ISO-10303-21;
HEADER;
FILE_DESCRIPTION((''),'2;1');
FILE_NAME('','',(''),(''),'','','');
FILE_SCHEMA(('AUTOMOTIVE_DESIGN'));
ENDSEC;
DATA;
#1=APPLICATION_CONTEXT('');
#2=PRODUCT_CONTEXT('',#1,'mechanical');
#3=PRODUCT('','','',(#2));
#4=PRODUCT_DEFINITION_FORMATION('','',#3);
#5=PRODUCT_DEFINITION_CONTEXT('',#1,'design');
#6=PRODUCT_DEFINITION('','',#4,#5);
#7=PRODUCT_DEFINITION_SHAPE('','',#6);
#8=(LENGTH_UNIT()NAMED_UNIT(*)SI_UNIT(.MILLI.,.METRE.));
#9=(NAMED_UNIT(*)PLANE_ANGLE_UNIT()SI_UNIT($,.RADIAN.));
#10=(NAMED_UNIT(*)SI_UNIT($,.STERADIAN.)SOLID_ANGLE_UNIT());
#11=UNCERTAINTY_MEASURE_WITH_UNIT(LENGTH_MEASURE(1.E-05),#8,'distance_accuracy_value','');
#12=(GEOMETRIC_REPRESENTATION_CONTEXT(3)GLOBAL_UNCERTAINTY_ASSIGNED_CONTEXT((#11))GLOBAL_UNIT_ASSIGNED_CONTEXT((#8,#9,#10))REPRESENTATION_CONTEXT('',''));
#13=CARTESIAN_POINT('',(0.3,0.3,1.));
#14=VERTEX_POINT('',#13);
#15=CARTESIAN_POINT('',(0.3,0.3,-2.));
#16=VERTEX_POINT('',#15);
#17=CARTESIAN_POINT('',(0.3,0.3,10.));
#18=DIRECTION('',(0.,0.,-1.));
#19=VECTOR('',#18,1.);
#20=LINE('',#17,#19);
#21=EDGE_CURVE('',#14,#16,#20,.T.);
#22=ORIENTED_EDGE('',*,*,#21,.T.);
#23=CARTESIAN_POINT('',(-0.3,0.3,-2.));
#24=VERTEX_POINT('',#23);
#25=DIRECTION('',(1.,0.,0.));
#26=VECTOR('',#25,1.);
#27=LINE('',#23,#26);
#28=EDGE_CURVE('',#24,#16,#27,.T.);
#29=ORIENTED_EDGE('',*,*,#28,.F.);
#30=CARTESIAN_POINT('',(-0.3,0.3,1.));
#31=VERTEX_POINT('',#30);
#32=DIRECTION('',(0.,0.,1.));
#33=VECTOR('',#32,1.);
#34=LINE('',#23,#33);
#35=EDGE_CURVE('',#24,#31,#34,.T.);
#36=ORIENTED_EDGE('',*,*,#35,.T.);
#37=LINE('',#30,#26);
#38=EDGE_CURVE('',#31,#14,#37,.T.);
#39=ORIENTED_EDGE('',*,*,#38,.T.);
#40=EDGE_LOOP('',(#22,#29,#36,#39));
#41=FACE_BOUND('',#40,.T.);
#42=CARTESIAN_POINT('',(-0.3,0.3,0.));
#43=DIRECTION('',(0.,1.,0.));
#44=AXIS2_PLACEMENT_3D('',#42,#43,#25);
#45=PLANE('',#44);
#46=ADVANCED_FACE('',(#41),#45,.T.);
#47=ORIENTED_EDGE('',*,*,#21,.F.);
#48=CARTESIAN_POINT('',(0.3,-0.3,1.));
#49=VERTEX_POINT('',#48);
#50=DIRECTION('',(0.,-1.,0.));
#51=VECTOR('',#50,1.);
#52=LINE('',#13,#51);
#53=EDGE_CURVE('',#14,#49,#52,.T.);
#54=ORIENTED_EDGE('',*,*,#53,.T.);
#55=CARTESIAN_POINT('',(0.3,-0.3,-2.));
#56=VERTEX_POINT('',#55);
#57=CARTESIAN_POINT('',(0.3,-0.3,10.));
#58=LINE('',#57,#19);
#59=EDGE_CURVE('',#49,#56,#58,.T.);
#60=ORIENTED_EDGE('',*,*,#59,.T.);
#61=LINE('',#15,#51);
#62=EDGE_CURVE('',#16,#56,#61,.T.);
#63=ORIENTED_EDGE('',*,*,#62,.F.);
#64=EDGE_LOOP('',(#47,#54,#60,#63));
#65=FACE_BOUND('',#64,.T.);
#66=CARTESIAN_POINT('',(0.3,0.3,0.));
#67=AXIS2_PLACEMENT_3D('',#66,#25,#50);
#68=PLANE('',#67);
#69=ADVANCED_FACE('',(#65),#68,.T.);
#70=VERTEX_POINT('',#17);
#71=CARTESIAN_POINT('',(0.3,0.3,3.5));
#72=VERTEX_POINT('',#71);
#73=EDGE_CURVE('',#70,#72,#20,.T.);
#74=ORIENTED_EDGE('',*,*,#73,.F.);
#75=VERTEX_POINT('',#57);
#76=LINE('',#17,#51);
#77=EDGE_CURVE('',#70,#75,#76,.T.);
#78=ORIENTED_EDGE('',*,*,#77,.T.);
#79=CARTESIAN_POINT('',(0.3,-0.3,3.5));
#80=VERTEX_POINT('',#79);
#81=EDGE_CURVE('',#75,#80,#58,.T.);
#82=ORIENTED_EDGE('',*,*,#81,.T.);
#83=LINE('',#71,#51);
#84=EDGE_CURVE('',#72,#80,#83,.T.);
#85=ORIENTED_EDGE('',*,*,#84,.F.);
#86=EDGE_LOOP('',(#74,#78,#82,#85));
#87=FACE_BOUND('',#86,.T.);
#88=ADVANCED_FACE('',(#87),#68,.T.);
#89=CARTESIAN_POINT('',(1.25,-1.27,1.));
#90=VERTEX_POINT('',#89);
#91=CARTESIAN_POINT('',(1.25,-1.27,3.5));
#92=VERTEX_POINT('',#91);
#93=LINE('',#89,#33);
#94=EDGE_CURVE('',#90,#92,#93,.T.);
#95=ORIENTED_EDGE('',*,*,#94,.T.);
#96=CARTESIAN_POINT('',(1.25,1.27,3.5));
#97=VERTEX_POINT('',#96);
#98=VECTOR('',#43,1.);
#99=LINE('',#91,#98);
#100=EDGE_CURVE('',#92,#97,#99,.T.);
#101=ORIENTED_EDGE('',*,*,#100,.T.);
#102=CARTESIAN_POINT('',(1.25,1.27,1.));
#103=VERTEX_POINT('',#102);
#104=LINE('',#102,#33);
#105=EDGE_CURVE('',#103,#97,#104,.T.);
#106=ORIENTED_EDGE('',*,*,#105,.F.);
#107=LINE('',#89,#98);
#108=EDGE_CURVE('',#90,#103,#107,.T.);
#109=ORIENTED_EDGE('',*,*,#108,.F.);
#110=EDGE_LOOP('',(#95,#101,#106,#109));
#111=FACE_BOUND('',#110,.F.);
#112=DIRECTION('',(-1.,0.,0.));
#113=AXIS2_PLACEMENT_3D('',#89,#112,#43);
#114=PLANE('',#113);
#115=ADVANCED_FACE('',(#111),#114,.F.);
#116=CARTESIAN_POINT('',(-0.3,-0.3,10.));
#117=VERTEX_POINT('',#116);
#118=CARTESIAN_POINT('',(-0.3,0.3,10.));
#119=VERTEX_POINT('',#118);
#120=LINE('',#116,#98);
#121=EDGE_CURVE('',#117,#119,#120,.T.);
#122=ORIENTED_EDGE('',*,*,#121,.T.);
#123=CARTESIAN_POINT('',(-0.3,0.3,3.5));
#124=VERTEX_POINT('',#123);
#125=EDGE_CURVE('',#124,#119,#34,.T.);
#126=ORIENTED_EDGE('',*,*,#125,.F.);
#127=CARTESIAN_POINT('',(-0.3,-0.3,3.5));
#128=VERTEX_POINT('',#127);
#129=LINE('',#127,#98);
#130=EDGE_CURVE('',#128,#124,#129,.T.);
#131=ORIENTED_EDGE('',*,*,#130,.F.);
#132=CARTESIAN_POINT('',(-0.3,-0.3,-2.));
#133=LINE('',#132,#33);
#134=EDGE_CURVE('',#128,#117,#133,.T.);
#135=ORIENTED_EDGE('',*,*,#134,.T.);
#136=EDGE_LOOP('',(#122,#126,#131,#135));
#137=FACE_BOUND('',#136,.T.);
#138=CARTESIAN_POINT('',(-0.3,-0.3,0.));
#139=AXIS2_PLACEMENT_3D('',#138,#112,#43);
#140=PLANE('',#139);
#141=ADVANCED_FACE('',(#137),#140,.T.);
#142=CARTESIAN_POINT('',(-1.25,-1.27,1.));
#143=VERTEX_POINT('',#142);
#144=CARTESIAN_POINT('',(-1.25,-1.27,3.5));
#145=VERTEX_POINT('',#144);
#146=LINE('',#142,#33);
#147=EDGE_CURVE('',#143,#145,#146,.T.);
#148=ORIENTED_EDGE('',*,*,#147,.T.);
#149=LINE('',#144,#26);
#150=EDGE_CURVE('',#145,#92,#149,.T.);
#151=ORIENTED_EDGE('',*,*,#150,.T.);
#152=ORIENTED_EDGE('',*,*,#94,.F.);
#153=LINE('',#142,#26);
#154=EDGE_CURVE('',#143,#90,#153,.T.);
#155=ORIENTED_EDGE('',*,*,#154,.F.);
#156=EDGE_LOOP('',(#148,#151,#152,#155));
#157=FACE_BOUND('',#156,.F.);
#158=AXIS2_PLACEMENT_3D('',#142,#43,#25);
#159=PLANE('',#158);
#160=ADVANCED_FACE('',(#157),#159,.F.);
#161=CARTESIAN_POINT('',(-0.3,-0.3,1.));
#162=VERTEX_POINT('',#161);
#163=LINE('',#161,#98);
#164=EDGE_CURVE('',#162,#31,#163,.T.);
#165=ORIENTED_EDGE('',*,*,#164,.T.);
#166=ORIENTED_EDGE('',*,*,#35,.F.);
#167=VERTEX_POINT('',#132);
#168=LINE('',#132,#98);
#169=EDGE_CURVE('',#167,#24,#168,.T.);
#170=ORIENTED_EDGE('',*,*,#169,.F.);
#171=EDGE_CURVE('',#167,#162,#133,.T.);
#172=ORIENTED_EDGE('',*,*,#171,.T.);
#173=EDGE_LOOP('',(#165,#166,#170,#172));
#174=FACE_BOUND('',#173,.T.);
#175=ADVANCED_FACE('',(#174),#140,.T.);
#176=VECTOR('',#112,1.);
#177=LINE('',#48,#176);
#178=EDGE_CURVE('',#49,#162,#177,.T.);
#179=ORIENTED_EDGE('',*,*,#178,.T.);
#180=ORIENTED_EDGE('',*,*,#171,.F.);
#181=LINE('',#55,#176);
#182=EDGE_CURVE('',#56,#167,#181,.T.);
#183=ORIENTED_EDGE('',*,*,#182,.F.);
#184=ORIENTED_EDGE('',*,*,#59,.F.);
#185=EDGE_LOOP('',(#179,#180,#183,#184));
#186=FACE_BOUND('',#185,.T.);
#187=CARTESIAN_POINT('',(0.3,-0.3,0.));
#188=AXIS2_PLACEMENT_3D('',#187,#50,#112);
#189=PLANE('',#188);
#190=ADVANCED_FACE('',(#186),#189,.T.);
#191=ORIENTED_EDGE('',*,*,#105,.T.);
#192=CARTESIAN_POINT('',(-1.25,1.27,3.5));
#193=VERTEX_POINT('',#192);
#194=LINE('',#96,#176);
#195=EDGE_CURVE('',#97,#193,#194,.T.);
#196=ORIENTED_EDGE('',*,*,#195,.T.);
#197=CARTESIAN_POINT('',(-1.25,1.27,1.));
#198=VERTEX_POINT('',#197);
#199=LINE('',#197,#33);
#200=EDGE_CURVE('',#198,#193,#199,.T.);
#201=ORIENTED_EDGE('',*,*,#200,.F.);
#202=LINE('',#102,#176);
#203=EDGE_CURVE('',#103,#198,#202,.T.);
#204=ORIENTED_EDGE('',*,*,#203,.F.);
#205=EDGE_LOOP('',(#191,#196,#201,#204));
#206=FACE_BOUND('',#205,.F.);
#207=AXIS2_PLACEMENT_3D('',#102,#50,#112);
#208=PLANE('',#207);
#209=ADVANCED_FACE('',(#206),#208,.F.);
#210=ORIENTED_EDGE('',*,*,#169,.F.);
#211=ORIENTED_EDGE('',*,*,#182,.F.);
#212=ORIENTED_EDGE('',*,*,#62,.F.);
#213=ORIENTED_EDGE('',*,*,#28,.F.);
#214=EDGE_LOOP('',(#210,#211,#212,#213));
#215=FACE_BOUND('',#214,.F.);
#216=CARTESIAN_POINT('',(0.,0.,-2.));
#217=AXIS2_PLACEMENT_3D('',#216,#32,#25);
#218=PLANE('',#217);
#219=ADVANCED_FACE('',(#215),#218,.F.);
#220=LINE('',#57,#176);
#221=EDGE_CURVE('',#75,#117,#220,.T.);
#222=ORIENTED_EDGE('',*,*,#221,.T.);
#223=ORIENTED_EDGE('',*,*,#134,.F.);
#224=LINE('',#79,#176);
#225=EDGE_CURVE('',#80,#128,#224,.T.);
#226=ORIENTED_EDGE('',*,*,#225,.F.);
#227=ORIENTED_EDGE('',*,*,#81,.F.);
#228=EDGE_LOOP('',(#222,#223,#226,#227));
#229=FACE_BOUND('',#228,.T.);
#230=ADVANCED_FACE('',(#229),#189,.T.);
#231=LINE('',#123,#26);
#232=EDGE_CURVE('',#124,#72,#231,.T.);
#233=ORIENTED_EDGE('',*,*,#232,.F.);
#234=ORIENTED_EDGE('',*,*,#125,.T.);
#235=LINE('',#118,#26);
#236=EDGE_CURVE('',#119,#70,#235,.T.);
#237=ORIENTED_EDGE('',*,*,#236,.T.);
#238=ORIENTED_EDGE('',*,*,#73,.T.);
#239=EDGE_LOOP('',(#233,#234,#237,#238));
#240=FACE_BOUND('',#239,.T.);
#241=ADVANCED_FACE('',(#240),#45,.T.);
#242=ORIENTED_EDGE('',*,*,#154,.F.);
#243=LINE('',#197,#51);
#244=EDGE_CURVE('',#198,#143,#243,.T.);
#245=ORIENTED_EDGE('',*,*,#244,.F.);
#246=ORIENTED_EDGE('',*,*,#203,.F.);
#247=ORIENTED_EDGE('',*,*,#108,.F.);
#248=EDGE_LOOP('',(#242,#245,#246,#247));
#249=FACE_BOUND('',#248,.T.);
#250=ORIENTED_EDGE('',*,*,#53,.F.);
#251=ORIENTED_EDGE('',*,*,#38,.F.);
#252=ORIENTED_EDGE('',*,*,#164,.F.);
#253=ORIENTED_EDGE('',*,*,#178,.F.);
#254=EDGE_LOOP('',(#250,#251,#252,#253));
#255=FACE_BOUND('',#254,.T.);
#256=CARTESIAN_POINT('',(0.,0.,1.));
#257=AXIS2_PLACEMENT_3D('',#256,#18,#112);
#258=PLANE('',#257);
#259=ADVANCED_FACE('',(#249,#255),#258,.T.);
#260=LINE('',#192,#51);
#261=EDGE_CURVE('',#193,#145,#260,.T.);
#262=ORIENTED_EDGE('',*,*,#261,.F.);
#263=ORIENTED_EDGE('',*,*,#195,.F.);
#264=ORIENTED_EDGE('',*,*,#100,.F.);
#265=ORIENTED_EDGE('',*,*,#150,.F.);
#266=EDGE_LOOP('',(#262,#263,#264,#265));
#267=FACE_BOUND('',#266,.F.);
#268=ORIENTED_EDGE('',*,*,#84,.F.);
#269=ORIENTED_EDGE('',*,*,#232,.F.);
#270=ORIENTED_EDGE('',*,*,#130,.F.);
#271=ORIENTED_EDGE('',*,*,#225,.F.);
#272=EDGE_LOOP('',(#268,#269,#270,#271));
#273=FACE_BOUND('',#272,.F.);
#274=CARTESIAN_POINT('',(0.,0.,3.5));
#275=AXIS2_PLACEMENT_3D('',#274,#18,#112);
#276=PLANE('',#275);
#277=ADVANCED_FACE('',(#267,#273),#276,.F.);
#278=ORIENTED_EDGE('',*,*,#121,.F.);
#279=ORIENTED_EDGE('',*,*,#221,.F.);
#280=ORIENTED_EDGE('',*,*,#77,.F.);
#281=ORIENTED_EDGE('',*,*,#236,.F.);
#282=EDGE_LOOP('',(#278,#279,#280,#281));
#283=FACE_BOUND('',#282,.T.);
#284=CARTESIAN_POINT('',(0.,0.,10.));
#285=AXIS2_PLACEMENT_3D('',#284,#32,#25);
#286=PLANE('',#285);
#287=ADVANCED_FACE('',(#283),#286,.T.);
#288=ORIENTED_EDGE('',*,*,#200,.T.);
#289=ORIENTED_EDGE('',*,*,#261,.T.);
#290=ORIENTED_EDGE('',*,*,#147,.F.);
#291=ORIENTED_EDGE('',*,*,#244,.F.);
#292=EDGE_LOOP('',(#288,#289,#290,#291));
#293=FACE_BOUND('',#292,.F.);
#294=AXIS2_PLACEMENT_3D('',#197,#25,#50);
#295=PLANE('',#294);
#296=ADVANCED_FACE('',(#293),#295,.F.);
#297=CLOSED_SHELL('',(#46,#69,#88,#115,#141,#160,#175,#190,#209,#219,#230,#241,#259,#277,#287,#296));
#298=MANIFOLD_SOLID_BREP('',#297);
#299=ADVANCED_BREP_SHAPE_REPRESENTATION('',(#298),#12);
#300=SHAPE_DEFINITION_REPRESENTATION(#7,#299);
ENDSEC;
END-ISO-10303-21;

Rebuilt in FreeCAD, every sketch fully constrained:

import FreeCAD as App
import Part
import Sketcher
Q = App.Units.Quantity

doc = App.newDocument("Part")
body = doc.addObject("PartDesign::Body", "Body")

# Sketch on XY plane
sketch1 = body.newObject("Sketcher::SketchObject", "Sketch")
sketch1.AttachmentSupport = (doc.getObject("XY_Plane"), [""])
sketch1.MapMode = "FlatFace"
sketch1.addGeometry([
    Part.LineSegment(App.Vector(0.3, 0.3, 0), App.Vector(-0.3, 0.3, 0)),
    Part.LineSegment(App.Vector(-0.3, 0.3, 0), App.Vector(-0.3, -0.3, 0)),
    Part.LineSegment(App.Vector(-0.3, -0.3, 0), App.Vector(0.3, -0.3, 0)),
    Part.LineSegment(App.Vector(0.3, -0.3, 0), App.Vector(0.3, 0.3, 0)),
], False)
sketch1.addConstraint([
    Sketcher.Constraint("Coincident", 0, 2, 1, 1),
    Sketcher.Constraint("Coincident", 1, 2, 2, 1),
    Sketcher.Constraint("Coincident", 2, 2, 3, 1),
    Sketcher.Constraint("Coincident", 3, 2, 0, 1),
    Sketcher.Constraint("Horizontal", 0),
    Sketcher.Constraint("Vertical", 1),
    Sketcher.Constraint("Horizontal", 2),
    Sketcher.Constraint("Vertical", 3),
    Sketcher.Constraint("Symmetric", 0, 2, 2, 2, -1, 1),
    Sketcher.Constraint("Equal", 2, 1),
    Sketcher.Constraint("DistanceX", 0, 2, 0, 1, Q("0.6 mm")),
])
pad1 = body.newObject("PartDesign::Pad", "Pad")
pad1.Profile = sketch1
pad1.Type = "TwoLengths"
pad1.Length = 10
pad1.Length2 = 2

# Sketch on XY plane
sketch2 = body.newObject("Sketcher::SketchObject", "Sketch001")
sketch2.AttachmentSupport = (doc.getObject("XY_Plane"), [""])
sketch2.MapMode = "FlatFace"
sketch2.AttachmentOffset = App.Placement(App.Vector(0, 0, 1), App.Rotation())
sketch2.addGeometry([
    Part.LineSegment(App.Vector(-1.2, 1.3, 0), App.Vector(1.2, 1.3, 0)),  # 0
    Part.LineSegment(App.Vector(1.2, 1.3, 0), App.Vector(1.2, -1.3, 0)),  # 1
    Part.LineSegment(App.Vector(1.2, -1.3, 0), App.Vector(-1.2, -1.3, 0)),  # 2
    Part.LineSegment(App.Vector(-1.2, -1.3, 0), App.Vector(-1.2, 1.3, 0)),  # 3
    Part.LineSegment(App.Vector(-0.3, -0.3, 0), App.Vector(0.3, -0.3, 0)),  # 4
    Part.LineSegment(App.Vector(0.3, -0.3, 0), App.Vector(0.3, 0.3, 0)),  # 5
    Part.LineSegment(App.Vector(0.3, 0.3, 0), App.Vector(-0.3, 0.3, 0)),  # 6
    Part.LineSegment(App.Vector(-0.3, 0.3, 0), App.Vector(-0.3, -0.3, 0)),  # 7
], False)
sketch2.addConstraint([
    Sketcher.Constraint("Coincident", 0, 2, 1, 1),
    Sketcher.Constraint("Coincident", 1, 2, 2, 1),
    Sketcher.Constraint("Coincident", 2, 2, 3, 1),
    Sketcher.Constraint("Coincident", 3, 2, 0, 1),
    Sketcher.Constraint("Coincident", 4, 2, 5, 1),
    Sketcher.Constraint("Coincident", 5, 2, 6, 1),
    Sketcher.Constraint("Coincident", 6, 2, 7, 1),
    Sketcher.Constraint("Coincident", 7, 2, 4, 1),
    Sketcher.Constraint("Horizontal", 0),
    Sketcher.Constraint("Vertical", 1),
    Sketcher.Constraint("Horizontal", 2),
    Sketcher.Constraint("Vertical", 3),
    Sketcher.Constraint("Horizontal", 4),
    Sketcher.Constraint("Vertical", 5),
    Sketcher.Constraint("Horizontal", 6),
    Sketcher.Constraint("Vertical", 7),
    Sketcher.Constraint("Symmetric", 0, 2, 2, 2, -1, 1),
    Sketcher.Constraint("Symmetric", 4, 2, 6, 2, -1, 1),
    Sketcher.Constraint("Equal", 6, 5),
    Sketcher.Constraint("DistanceX", 0, 1, 0, 2, Q("2.5 mm")),
    Sketcher.Constraint("DistanceY", 1, 2, 1, 1, Q("2.54 mm")),
    Sketcher.Constraint("DistanceX", 4, 1, 4, 2, Q("0.6 mm")),
])
pad2 = body.newObject("PartDesign::Pad", "Pad001")
pad2.Profile = sketch2
pad2.Length = 2.5

doc.recompute()
